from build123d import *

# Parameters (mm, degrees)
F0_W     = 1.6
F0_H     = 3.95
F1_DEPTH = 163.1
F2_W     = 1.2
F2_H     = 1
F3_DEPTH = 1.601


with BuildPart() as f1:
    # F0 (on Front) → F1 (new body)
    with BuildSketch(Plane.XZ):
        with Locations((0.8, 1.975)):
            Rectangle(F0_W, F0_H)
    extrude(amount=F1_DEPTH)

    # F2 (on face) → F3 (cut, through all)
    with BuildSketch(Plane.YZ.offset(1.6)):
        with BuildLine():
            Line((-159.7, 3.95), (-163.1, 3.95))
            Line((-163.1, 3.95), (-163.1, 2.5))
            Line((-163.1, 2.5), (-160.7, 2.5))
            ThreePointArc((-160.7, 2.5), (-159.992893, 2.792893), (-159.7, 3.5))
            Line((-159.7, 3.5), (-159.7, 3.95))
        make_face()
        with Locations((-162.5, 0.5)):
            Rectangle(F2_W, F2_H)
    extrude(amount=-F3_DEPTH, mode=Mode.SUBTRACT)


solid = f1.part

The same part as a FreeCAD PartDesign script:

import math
import FreeCAD as App
import Part
import Sketcher
Q = App.Units.Quantity


def add_polygon(sketch, points):
    """Adds a closed chain of lines whose ends are joined by coincident constraints."""
    first, n = sketch.GeometryCount, len(points)
    for a, b in zip(points, points[1:] + points[:1]):
        sketch.addGeometry(Part.LineSegment(App.Vector(*a, 0), App.Vector(*b, 0)), False)
    for i in range(n):
        sketch.addConstraint(Sketcher.Constraint("Coincident", first + i, 2, first + (i + 1) % n, 1))

doc = App.newDocument("Part")
params = doc.addObject("Spreadsheet::Sheet", "Params")
for row, (alias, value) in enumerate([
    ("sketch1_width", "1.6 mm"),
    ("sketch1_height", "3.95 mm"),
    ("pad1_length", "163.1 mm"),
    ("sketch2_radius", "0.999999 mm"),
    ("sketch2_height", "1 mm"),
    ("sketch2_width", "3.4 mm"),
    ("sketch2_width2", "1.2 mm"),
    ("sketch2_height2", "1.45 mm"),
], start=1):
    params.set(f"A{row}", alias)
    params.set(f"B{row}", "=" + value)
    params.setAlias(f"B{row}", alias)

body = doc.addObject("PartDesign::Body", "Body")

# Sketch on XZ plane
sketch1 = doc.addObject("Sketcher::SketchObject", "Sketch")
body.addObject(sketch1)
sketch1.AttachmentSupport = (doc.XZ_Plane, [""])
sketch1.MapMode = "FlatFace"
add_polygon(sketch1, [(0, 4), (0, 0), (1.6, 0), (1.6, 4)])  # lines 0-3
sketch1.addConstraint([
    Sketcher.Constraint("Vertical", 0),
    Sketcher.Constraint("Horizontal", 1),
    Sketcher.Constraint("Vertical", 2),
    Sketcher.Constraint("Horizontal", 3),
    Sketcher.Constraint("Coincident", 0, 2, -1, 1),
    Sketcher.Constraint("DistanceX", 1, 1, 1, 2, Q("1.6 mm")),
    Sketcher.Constraint("DistanceY", 0, 2, 0, 1, Q("3.95 mm")),
])
sketch1.setExpression("Constraints[9]", "Params.sketch1_width")
sketch1.setExpression("Constraints[10]", "Params.sketch1_height")
pad1 = doc.addObject("PartDesign::Pad", "Pad")
body.addObject(pad1)
pad1.Profile = sketch1
pad1.setExpression("Length", "Params.pad1_length")

# Sketch on YZ plane
sketch2 = doc.addObject("Sketcher::SketchObject", "Sketch001")
body.addObject(sketch2)
sketch2.AttachmentSupport = (doc.YZ_Plane, [""])
sketch2.MapMode = "FlatFace"
sketch2.AttachmentOffset = App.Placement(App.Vector(0, 0, 1.6), App.Rotation())
sketch2.addGeometry(Part.LineSegment(App.Vector(-159.7, 3.95, 0), App.Vector(-163.1, 3.95, 0)), False)  # 0
sketch2.addGeometry(Part.LineSegment(App.Vector(-163.1, 3.95, 0), App.Vector(-163.1, 2.5, 0)), False)  # 1
sketch2.addGeometry(Part.LineSegment(App.Vector(-163.1, 2.5, 0), App.Vector(-160.7, 2.5, 0)), False)  # 2
sketch2.addGeometry(Part.ArcOfCircle(Part.Circle(App.Vector(-160.7, 3.5, 0), App.Vector(0, 0, 1), 1), math.radians(-90), math.radians(0)), False)  # 3
sketch2.addGeometry(Part.LineSegment(App.Vector(-159.7, 3.5, 0), App.Vector(-159.7, 3.95, 0)), False)  # 4
add_polygon(sketch2, [(-163.1, 1), (-163.1, 0), (-161.9, 0), (-161.9, 1)])  # lines 5-8
sketch2.addConstraint([
    Sketcher.Constraint("Coincident", 0, 2, 1, 1),
    Sketcher.Constraint("Coincident", 1, 2, 2, 1),
    Sketcher.Constraint("Tangent", 2, 2, 3, 1),
    Sketcher.Constraint("Tangent", 3, 2, 4, 1),
    Sketcher.Constraint("Coincident", 4, 2, 0, 1),
    Sketcher.Constraint("Horizontal", 0),
    Sketcher.Constraint("Vertical", 1),
    Sketcher.Constraint("Horizontal", 2),
    Sketcher.Constraint("Vertical", 4),
    Sketcher.Constraint("Vertical", 5),
    Sketcher.Constraint("Horizontal", 6),
    Sketcher.Constraint("Vertical", 7),
    Sketcher.Constraint("Horizontal", 8),
    Sketcher.Constraint("PointOnObject", 5, 2, -1),
    Sketcher.Constraint("Vertical", 1, 2, 5, 2),
    Sketcher.Constraint("Radius", 3, Q("0.999999 mm")),
    Sketcher.Constraint("DistanceY", 5, 2, 5, 1, Q("1 mm")),
    Sketcher.Constraint("DistanceX", 0, 2, 0, 1, Q("3.4 mm")),
    Sketcher.Constraint("DistanceX", 6, 1, 6, 2, Q("1.2 mm")),
    Sketcher.Constraint("DistanceY", 1, 2, 1, 1, Q("1.45 mm")),
    Sketcher.Constraint("DistanceX", 3, 3, -1, 1, Q("160.699999 mm")),
    Sketcher.Constraint("DistanceY", -1, 1, 3, 3, Q("3.499999 mm")),
])
sketch2.setExpression("Constraints[19]", "Params.sketch2_radius")
sketch2.setExpression("Constraints[20]", "Params.sketch2_height")
sketch2.setExpression("Constraints[21]", "Params.sketch2_width")
sketch2.setExpression("Constraints[22]", "Params.sketch2_width2")
sketch2.setExpression("Constraints[23]", "Params.sketch2_height2")
pocket1 = doc.addObject("PartDesign::Pocket", "Pocket")
body.addObject(pocket1)
pocket1.Profile = sketch2
pocket1.Type = "ThroughAll"

doc.recompute()
